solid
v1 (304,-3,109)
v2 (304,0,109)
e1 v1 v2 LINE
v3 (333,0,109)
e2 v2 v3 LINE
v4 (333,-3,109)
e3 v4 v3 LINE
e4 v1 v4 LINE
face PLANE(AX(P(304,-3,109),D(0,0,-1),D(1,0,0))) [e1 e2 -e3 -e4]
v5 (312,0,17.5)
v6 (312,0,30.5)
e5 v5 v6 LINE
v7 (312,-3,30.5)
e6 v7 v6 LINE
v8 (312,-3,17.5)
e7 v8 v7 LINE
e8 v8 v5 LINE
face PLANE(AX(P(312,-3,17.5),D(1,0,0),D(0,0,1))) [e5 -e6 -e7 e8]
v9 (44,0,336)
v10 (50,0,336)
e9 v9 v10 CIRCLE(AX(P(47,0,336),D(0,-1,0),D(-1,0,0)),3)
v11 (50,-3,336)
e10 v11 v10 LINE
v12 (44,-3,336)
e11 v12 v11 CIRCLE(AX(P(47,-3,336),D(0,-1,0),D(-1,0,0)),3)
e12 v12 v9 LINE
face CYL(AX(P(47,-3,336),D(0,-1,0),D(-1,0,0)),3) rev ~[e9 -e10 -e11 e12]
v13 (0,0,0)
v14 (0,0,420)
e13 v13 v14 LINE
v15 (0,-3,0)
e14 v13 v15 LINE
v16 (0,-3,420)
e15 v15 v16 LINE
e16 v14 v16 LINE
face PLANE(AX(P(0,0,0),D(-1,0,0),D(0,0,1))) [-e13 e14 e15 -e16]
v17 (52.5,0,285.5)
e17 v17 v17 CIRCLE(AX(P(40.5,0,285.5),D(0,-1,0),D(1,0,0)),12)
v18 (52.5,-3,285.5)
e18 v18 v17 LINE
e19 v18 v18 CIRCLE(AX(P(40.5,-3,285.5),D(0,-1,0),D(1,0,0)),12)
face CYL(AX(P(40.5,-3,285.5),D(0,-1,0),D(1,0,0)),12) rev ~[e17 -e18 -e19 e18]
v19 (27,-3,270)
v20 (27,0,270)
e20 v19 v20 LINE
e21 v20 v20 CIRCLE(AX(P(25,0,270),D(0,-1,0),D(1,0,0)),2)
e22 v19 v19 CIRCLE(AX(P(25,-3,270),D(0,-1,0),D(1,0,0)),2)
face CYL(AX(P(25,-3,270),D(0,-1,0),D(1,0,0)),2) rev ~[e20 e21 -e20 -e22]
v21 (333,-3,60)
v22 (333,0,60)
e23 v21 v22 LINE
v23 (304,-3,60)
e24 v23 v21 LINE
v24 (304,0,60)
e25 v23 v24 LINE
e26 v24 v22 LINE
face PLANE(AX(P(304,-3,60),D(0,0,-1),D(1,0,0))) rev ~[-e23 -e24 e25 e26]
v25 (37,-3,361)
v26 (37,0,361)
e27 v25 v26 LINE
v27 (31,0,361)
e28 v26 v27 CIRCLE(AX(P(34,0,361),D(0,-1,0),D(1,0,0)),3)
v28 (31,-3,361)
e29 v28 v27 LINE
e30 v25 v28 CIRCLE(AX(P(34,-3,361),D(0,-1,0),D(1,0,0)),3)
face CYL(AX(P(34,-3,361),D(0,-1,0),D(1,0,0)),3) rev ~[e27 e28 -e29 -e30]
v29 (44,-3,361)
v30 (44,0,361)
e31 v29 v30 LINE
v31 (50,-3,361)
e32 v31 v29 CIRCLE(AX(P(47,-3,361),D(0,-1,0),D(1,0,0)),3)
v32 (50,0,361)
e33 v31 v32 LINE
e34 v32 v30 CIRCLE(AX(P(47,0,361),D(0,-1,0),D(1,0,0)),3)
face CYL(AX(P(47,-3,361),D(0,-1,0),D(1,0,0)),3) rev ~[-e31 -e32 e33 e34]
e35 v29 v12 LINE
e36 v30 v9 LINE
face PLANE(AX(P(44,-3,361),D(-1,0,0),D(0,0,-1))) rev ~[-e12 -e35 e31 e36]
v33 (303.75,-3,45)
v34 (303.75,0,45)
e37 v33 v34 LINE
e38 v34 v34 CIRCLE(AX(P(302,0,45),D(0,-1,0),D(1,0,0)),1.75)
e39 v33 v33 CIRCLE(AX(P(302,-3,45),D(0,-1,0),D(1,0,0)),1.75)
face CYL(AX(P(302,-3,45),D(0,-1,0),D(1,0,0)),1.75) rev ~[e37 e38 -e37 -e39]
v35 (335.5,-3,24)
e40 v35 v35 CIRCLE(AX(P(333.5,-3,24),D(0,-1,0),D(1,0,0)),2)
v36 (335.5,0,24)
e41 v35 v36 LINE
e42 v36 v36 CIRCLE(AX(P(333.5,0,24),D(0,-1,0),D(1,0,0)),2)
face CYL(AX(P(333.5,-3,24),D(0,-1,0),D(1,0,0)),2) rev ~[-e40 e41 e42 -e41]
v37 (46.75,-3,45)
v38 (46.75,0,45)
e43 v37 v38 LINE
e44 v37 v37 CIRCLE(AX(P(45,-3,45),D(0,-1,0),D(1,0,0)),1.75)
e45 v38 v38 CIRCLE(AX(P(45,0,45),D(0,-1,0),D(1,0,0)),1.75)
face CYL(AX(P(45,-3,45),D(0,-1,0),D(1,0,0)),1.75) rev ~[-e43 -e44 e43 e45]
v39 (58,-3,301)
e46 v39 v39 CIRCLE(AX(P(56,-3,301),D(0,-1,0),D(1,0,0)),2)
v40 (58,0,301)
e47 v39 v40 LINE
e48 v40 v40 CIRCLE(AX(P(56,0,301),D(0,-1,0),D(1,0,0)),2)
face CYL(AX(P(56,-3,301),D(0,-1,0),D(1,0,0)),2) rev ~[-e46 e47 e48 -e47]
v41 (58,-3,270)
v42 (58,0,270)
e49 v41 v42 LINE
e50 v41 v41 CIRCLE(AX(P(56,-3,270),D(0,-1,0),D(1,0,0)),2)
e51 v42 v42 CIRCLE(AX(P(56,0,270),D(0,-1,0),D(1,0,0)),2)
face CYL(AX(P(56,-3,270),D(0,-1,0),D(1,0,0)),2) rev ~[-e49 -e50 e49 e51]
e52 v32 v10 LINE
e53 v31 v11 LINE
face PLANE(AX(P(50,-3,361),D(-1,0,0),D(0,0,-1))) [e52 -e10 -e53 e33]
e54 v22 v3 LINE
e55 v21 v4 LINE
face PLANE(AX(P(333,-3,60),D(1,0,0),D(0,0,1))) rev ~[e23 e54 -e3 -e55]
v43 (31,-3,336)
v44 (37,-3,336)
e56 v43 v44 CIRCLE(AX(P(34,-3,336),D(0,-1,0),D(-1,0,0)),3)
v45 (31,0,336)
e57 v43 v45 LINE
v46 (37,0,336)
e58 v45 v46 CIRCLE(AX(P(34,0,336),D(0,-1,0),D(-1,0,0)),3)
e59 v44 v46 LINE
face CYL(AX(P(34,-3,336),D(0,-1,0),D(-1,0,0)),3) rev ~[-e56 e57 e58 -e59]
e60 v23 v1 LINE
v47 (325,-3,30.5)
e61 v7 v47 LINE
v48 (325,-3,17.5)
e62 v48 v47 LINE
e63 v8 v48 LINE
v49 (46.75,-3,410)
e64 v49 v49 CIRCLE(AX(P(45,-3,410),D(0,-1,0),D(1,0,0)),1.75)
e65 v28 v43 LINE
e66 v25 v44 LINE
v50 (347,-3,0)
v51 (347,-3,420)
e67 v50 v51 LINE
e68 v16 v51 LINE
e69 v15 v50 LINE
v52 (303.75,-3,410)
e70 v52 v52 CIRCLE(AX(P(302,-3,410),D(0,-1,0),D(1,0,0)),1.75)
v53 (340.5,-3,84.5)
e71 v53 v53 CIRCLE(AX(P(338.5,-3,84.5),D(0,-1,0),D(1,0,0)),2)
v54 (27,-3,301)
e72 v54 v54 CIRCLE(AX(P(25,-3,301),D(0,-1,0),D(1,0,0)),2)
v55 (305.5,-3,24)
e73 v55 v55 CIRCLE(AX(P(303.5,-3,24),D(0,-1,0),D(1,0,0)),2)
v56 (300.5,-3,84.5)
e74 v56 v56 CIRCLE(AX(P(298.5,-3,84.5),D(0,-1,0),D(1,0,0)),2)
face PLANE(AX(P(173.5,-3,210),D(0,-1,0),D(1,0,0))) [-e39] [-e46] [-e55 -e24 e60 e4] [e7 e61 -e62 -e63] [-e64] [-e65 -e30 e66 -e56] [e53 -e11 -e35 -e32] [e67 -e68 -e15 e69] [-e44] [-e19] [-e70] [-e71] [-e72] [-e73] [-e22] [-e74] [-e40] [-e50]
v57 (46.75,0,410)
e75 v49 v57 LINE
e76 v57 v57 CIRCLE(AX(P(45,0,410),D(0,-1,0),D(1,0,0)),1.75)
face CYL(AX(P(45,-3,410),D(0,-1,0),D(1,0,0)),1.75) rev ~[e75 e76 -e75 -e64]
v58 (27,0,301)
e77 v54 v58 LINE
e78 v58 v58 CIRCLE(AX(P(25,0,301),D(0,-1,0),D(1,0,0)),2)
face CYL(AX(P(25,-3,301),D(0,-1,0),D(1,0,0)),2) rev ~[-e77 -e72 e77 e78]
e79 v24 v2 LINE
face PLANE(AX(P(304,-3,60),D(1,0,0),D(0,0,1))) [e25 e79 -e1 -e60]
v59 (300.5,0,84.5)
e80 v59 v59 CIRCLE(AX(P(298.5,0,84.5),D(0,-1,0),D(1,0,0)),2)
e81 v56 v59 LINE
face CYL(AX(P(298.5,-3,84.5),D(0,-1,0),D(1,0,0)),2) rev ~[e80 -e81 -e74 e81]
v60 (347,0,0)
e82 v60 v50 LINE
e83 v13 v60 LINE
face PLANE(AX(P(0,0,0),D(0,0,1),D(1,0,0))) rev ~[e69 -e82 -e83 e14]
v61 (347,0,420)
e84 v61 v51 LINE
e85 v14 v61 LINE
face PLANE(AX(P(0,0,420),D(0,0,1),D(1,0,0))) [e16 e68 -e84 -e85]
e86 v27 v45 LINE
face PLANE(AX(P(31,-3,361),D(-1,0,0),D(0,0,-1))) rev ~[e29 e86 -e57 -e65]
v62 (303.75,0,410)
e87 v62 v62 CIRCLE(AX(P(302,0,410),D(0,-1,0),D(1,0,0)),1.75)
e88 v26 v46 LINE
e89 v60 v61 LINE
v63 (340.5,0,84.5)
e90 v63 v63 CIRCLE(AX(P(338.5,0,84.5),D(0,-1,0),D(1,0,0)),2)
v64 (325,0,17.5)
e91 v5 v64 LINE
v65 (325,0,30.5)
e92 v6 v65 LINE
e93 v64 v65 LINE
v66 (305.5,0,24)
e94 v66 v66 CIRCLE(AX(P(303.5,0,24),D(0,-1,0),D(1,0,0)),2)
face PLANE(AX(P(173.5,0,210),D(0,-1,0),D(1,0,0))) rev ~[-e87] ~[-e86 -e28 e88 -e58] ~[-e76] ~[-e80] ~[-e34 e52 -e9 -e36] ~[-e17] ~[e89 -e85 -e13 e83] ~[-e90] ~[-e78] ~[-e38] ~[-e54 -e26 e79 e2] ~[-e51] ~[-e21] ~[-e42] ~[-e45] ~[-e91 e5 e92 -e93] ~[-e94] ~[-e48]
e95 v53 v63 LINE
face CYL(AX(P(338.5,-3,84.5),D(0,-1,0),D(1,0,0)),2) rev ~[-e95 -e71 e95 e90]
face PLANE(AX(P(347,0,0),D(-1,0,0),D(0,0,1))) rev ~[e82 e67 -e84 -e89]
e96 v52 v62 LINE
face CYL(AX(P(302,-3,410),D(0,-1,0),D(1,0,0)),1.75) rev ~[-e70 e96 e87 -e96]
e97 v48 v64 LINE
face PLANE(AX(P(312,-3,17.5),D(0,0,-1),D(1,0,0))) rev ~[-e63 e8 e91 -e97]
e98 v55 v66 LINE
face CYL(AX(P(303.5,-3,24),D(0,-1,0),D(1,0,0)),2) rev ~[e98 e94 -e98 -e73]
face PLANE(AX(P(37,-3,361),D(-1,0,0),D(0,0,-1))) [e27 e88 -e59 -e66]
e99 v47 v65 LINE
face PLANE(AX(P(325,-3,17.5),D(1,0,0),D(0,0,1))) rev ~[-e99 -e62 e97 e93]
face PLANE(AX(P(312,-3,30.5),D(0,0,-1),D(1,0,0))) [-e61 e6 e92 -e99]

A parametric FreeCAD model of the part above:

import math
import FreeCAD as App
import Part
import Sketcher
from FreeCAD import Vector


def add_polygon(sketch, points):
    """Adds a closed chain of lines whose ends are joined by coincident constraints."""
    first, n = sketch.GeometryCount, len(points)
    for a, b in zip(points, points[1:] + points[:1]):
        sketch.addGeometry(Part.LineSegment(App.Vector(*a, 0), App.Vector(*b, 0)), False)
    for i in range(n):
        sketch.addConstraint(Sketcher.Constraint("Coincident", first + i, 2, first + (i + 1) % n, 1))

doc = App.newDocument("Part")
body = doc.addObject("PartDesign::Body", "Body")

sketch1 = body.newObject("Sketcher::SketchObject", "Sketch")
sketch1.AttachmentSupport = (doc.getObject("XZ_Plane"), [""])
sketch1.MapMode = "FlatFace"
add_polygon(sketch1, [(0, 420), (0, 0), (347, 0), (347, 420)])
sketch1.addConstraint([
    Sketcher.Constraint("Vertical", 0),
    Sketcher.Constraint("Horizontal", 1),
    Sketcher.Constraint("Vertical", 2),
    Sketcher.Constraint("Horizontal", 3),
    Sketcher.Constraint("Coincident", 0, 2, -1, 1),
    Sketcher.Constraint("DistanceX", 1, 1, 1, 2, 347.0),
    Sketcher.Constraint("DistanceY", 0, 2, 0, 1, 420.0),
])
pad1 = body.newObject("PartDesign::Pad", "Pad")
pad1.Profile = sketch1
pad1.Length = 3

sketch2 = body.newObject("Sketcher::SketchObject", "Sketch001")
sketch2.AttachmentSupport = (doc.getObject("XZ_Plane"), [""])
sketch2.MapMode = "FlatFace"
sketch2.AttachmentOffset = App.Placement(Vector(0, 0, 3), App.Rotation())
sketch2.addGeometry([
    Part.Circle(Vector(45, 45, 0), Vector(0, 0, 1), 1.75),
    Part.Circle(Vector(302, 45, 0), Vector(0, 0, 1), 1.75),
    Part.Circle(Vector(302, 410, 0), Vector(0, 0, 1), 1.75),
    Part.Circle(Vector(45, 410, 0), Vector(0, 0, 1), 1.75),
], False)
sketch2.addConstraint([
    Sketcher.Constraint("Equal", 0, 1),
    Sketcher.Constraint("Equal", 1, 2),
    Sketcher.Constraint("Equal", 2, 3),
    Sketcher.Constraint("Horizontal", 0, 3, 1, 3),
    Sketcher.Constraint("Horizontal", 2, 3, 3, 3),
    Sketcher.Constraint("Vertical", 1, 3, 2, 3),
    Sketcher.Constraint("Vertical", 0, 3, 3, 3),
    Sketcher.Constraint("Diameter", 0, 3.5),
    Sketcher.Constraint("DistanceX", -1, 1, 0, 3, 45.0),
    Sketcher.Constraint("DistanceY", -1, 1, 0, 3, 45.0),
    Sketcher.Constraint("DistanceX", -1, 1, 1, 3, 302.0),
    Sketcher.Constraint("DistanceY", -1, 1, 2, 3, 410.0),
])
pocket1 = body.newObject("PartDesign::Pocket", "Pocket")
pocket1.Profile = sketch2
pocket1.Type = "ThroughAll"

sketch3 = body.newObject("Sketcher::SketchObject", "Sketch002")
sketch3.AttachmentSupport = (doc.getObject("XZ_Plane"), [""])
sketch3.MapMode = "FlatFace"
sketch3.AttachmentOffset = App.Placement(Vector(0, 0, 3), App.Rotation())
sketch3.addGeometry([
    Part.Circle(Vector(25, 301, 0), Vector(0, 0, 1), 2),
    Part.Circle(Vector(25, 270, 0), Vector(0, 0, 1), 2),
    Part.Circle(Vector(56, 270, 0), Vector(0, 0, 1), 2),
    Part.Circle(Vector(56, 301, 0), Vector(0, 0, 1), 2),
    Part.Circle(Vector(40.5, 285.5, 0), Vector(0, 0, 1), 12),
    Part.ArcOfCircle(Part.Circle(Vector(34, 361, 0), Vector(0, 0, 1), 3), math.radians(0), math.radians(180)),
    Part.LineSegment(Vector(31, 361, 0), Vector(31, 336, 0)),
    Part.ArcOfCircle(Part.Circle(Vector(34, 336, 0), Vector(0, 0, 1), 3), math.radians(180), math.radians(360)),
    Part.LineSegment(Vector(37, 336, 0), Vector(37, 361, 0)),
    Part.ArcOfCircle(Part.Circle(Vector(47, 361, 0), Vector(0, 0, 1), 3), math.radians(0), math.radians(180)),
    Part.LineSegment(Vector(44, 361, 0), Vector(44, 336, 0)),
    Part.ArcOfCircle(Part.Circle(Vector(47, 336, 0), Vector(0, 0, 1), 3), math.radians(180), math.radians(360)),
    Part.LineSegment(Vector(50, 336, 0), Vector(50, 361, 0)),
], False)
sketch3.addConstraint([
    Sketcher.Constraint("Tangent", 5, 2, 6, 1),
    Sketcher.Constraint("Tangent", 6, 2, 7, 1),
    Sketcher.Constraint("Tangent", 7, 2, 8, 1),
    Sketcher.Constraint("Tangent", 8, 2, 5, 1),
    Sketcher.Constraint("Tangent", 9, 2, 10, 1),
    Sketcher.Constraint("Tangent", 10, 2, 11, 1),
    Sketcher.Constraint("Tangent", 11, 2, 12, 1),
    Sketcher.Constraint("Tangent", 12, 2, 9, 1),
    Sketcher.Constraint("Vertical", 6),
    Sketcher.Constraint("Vertical", 8),
    Sketcher.Constraint("Vertical", 10),
    Sketcher.Constraint("Vertical", 12),
    Sketcher.Constraint("Equal", 0, 1),
    Sketcher.Constraint("Equal", 1, 2),
    Sketcher.Constraint("Equal", 2, 3),
    Sketcher.Constraint("Equal", 7, 9),
    Sketcher.Constraint("Horizontal", 1, 3, 2, 3),
    Sketcher.Constraint("Horizontal", 0, 3, 3, 3),
    Sketcher.Constraint("Horizontal", 5, 3, 9, 3),
    Sketcher.Constraint("Horizontal", 7, 3, 11, 3),
    Sketcher.Constraint("Vertical", 0, 3, 1, 3),
    Sketcher.Constraint("Vertical", 2, 3, 3, 3),
    Sketcher.Constraint("Diameter", 0, 4.0),
    Sketcher.Constraint("Diameter", 4, 24.0),
    Sketcher.Constraint("Radius", 5, 3.0),
    Sketcher.Constraint("DistanceY", 6, 2, 6, 1, 25.0),
    Sketcher.Constraint("DistanceX", -1, 1, 0, 3, 25.0),
    Sketcher.Constraint("DistanceY", -1, 1, 0, 3, 301.0),
    Sketcher.Constraint("DistanceY", -1, 1, 1, 3, 270.0),
    Sketcher.Constraint("DistanceX", -1, 1, 2, 3, 56.0),
    Sketcher.Constraint("DistanceX", -1, 1, 5, 3, 34.0),
    Sketcher.Constraint("DistanceY", -1, 1, 5, 3, 361.0),
    Sketcher.Constraint("DistanceX", -1, 1, 9, 3, 47.0),
    Sketcher.Constraint("DistanceX", -1, 1, 4, 3, 40.5),
    Sketcher.Constraint("DistanceY", -1, 1, 4, 3, 285.5),
])
pocket2 = body.newObject("PartDesign::Pocket", "Pocket001")
pocket2.Profile = sketch3
pocket2.Length = 5

sketch4 = body.newObject("Sketcher::SketchObject", "Sketch003")
sketch4.AttachmentSupport = (doc.getObject("XZ_Plane"), [""])
sketch4.MapMode = "FlatFace"
sketch4.AttachmentOffset = App.Placement(Vector(0, 0, 3), App.Rotation())
sketch4.addGeometry(Part.Circle(Vector(298.5, 84.5, 0), Vector(0, 0, 1), 2), False)
sketch4.addGeometry(Part.Circle(Vector(338.5, 84.5, 0), Vector(0, 0, 1), 2), False)
sketch4.addGeometry(Part.Circle(Vector(303.5, 24, 0), Vector(0, 0, 1), 2), False)
sketch4.addGeometry(Part.Circle(Vector(333.5, 24, 0), Vector(0, 0, 1), 2), False)
add_polygon(sketch4, [(304, 109), (304, 60), (333, 60), (333, 109)])
add_polygon(sketch4, [(312, 30.5), (312, 17.5), (325, 17.5), (325, 30.5)])
sketch4.addConstraint([
    Sketcher.Constraint("Vertical", 4),
    Sketcher.Constraint("Horizontal", 5),
    Sketcher.Constraint("Vertical", 6),
    Sketcher.Constraint("Horizontal", 7),
    Sketcher.Constraint("Vertical", 8),
    Sketcher.Constraint("Horizontal", 9),
    Sketcher.Constraint("Vertical", 10),
    Sketcher.Constraint("Horizontal", 11),
    Sketcher.Constraint("Equal", 0, 1),
    Sketcher.Constraint("Equal", 1, 2),
    Sketcher.Constraint("Equal", 2, 3),
    Sketcher.Constraint("Horizontal", 0, 3, 1, 3),
    Sketcher.Constraint("Horizontal", 2, 3, 3, 3),
    Sketcher.Constraint("Equal", 11, 8),
    Sketcher.Constraint("Diameter", 0, 4.0),
    Sketcher.Constraint("DistanceX", 5, 1, 5, 2, 29.0),
    Sketcher.Constraint("DistanceX", 9, 1, 9, 2, 13.0),
    Sketcher.Constraint("DistanceY", 4, 2, 4, 1, 49.0),
    Sketcher.Constraint("DistanceY", -1, 1, 2, 3, 24.0),
    Sketcher.Constraint("DistanceX", -1, 1, 4, 2, 304.0),
    Sketcher.Constraint("DistanceY", -1, 1, 4, 2, 60.0),
    Sketcher.Constraint("DistanceX", -1, 1, 8, 2, 312.0),
    Sketcher.Constraint("DistanceX", 0, 3, 1, 3, 40.0),
    Sketcher.Constraint("DistanceX", 0, 3, 2, 3, 5.0),
    Sketcher.Constraint("DistanceX", 2, 3, 3, 3, 30.0),
    Sketcher.Constraint("DistanceY", 8, 2, 0, 3, 67.0),
    Sketcher.Constraint("DistanceX", -1, 1, 0, 3, 298.5),
    Sketcher.Constraint("DistanceY", -1, 1, 0, 3, 84.5),
])
pocket3 = body.newObject("PartDesign::Pocket", "Pocket002")
pocket3.Profile = sketch4
pocket3.Type = "ThroughAll"

doc.recompute()
